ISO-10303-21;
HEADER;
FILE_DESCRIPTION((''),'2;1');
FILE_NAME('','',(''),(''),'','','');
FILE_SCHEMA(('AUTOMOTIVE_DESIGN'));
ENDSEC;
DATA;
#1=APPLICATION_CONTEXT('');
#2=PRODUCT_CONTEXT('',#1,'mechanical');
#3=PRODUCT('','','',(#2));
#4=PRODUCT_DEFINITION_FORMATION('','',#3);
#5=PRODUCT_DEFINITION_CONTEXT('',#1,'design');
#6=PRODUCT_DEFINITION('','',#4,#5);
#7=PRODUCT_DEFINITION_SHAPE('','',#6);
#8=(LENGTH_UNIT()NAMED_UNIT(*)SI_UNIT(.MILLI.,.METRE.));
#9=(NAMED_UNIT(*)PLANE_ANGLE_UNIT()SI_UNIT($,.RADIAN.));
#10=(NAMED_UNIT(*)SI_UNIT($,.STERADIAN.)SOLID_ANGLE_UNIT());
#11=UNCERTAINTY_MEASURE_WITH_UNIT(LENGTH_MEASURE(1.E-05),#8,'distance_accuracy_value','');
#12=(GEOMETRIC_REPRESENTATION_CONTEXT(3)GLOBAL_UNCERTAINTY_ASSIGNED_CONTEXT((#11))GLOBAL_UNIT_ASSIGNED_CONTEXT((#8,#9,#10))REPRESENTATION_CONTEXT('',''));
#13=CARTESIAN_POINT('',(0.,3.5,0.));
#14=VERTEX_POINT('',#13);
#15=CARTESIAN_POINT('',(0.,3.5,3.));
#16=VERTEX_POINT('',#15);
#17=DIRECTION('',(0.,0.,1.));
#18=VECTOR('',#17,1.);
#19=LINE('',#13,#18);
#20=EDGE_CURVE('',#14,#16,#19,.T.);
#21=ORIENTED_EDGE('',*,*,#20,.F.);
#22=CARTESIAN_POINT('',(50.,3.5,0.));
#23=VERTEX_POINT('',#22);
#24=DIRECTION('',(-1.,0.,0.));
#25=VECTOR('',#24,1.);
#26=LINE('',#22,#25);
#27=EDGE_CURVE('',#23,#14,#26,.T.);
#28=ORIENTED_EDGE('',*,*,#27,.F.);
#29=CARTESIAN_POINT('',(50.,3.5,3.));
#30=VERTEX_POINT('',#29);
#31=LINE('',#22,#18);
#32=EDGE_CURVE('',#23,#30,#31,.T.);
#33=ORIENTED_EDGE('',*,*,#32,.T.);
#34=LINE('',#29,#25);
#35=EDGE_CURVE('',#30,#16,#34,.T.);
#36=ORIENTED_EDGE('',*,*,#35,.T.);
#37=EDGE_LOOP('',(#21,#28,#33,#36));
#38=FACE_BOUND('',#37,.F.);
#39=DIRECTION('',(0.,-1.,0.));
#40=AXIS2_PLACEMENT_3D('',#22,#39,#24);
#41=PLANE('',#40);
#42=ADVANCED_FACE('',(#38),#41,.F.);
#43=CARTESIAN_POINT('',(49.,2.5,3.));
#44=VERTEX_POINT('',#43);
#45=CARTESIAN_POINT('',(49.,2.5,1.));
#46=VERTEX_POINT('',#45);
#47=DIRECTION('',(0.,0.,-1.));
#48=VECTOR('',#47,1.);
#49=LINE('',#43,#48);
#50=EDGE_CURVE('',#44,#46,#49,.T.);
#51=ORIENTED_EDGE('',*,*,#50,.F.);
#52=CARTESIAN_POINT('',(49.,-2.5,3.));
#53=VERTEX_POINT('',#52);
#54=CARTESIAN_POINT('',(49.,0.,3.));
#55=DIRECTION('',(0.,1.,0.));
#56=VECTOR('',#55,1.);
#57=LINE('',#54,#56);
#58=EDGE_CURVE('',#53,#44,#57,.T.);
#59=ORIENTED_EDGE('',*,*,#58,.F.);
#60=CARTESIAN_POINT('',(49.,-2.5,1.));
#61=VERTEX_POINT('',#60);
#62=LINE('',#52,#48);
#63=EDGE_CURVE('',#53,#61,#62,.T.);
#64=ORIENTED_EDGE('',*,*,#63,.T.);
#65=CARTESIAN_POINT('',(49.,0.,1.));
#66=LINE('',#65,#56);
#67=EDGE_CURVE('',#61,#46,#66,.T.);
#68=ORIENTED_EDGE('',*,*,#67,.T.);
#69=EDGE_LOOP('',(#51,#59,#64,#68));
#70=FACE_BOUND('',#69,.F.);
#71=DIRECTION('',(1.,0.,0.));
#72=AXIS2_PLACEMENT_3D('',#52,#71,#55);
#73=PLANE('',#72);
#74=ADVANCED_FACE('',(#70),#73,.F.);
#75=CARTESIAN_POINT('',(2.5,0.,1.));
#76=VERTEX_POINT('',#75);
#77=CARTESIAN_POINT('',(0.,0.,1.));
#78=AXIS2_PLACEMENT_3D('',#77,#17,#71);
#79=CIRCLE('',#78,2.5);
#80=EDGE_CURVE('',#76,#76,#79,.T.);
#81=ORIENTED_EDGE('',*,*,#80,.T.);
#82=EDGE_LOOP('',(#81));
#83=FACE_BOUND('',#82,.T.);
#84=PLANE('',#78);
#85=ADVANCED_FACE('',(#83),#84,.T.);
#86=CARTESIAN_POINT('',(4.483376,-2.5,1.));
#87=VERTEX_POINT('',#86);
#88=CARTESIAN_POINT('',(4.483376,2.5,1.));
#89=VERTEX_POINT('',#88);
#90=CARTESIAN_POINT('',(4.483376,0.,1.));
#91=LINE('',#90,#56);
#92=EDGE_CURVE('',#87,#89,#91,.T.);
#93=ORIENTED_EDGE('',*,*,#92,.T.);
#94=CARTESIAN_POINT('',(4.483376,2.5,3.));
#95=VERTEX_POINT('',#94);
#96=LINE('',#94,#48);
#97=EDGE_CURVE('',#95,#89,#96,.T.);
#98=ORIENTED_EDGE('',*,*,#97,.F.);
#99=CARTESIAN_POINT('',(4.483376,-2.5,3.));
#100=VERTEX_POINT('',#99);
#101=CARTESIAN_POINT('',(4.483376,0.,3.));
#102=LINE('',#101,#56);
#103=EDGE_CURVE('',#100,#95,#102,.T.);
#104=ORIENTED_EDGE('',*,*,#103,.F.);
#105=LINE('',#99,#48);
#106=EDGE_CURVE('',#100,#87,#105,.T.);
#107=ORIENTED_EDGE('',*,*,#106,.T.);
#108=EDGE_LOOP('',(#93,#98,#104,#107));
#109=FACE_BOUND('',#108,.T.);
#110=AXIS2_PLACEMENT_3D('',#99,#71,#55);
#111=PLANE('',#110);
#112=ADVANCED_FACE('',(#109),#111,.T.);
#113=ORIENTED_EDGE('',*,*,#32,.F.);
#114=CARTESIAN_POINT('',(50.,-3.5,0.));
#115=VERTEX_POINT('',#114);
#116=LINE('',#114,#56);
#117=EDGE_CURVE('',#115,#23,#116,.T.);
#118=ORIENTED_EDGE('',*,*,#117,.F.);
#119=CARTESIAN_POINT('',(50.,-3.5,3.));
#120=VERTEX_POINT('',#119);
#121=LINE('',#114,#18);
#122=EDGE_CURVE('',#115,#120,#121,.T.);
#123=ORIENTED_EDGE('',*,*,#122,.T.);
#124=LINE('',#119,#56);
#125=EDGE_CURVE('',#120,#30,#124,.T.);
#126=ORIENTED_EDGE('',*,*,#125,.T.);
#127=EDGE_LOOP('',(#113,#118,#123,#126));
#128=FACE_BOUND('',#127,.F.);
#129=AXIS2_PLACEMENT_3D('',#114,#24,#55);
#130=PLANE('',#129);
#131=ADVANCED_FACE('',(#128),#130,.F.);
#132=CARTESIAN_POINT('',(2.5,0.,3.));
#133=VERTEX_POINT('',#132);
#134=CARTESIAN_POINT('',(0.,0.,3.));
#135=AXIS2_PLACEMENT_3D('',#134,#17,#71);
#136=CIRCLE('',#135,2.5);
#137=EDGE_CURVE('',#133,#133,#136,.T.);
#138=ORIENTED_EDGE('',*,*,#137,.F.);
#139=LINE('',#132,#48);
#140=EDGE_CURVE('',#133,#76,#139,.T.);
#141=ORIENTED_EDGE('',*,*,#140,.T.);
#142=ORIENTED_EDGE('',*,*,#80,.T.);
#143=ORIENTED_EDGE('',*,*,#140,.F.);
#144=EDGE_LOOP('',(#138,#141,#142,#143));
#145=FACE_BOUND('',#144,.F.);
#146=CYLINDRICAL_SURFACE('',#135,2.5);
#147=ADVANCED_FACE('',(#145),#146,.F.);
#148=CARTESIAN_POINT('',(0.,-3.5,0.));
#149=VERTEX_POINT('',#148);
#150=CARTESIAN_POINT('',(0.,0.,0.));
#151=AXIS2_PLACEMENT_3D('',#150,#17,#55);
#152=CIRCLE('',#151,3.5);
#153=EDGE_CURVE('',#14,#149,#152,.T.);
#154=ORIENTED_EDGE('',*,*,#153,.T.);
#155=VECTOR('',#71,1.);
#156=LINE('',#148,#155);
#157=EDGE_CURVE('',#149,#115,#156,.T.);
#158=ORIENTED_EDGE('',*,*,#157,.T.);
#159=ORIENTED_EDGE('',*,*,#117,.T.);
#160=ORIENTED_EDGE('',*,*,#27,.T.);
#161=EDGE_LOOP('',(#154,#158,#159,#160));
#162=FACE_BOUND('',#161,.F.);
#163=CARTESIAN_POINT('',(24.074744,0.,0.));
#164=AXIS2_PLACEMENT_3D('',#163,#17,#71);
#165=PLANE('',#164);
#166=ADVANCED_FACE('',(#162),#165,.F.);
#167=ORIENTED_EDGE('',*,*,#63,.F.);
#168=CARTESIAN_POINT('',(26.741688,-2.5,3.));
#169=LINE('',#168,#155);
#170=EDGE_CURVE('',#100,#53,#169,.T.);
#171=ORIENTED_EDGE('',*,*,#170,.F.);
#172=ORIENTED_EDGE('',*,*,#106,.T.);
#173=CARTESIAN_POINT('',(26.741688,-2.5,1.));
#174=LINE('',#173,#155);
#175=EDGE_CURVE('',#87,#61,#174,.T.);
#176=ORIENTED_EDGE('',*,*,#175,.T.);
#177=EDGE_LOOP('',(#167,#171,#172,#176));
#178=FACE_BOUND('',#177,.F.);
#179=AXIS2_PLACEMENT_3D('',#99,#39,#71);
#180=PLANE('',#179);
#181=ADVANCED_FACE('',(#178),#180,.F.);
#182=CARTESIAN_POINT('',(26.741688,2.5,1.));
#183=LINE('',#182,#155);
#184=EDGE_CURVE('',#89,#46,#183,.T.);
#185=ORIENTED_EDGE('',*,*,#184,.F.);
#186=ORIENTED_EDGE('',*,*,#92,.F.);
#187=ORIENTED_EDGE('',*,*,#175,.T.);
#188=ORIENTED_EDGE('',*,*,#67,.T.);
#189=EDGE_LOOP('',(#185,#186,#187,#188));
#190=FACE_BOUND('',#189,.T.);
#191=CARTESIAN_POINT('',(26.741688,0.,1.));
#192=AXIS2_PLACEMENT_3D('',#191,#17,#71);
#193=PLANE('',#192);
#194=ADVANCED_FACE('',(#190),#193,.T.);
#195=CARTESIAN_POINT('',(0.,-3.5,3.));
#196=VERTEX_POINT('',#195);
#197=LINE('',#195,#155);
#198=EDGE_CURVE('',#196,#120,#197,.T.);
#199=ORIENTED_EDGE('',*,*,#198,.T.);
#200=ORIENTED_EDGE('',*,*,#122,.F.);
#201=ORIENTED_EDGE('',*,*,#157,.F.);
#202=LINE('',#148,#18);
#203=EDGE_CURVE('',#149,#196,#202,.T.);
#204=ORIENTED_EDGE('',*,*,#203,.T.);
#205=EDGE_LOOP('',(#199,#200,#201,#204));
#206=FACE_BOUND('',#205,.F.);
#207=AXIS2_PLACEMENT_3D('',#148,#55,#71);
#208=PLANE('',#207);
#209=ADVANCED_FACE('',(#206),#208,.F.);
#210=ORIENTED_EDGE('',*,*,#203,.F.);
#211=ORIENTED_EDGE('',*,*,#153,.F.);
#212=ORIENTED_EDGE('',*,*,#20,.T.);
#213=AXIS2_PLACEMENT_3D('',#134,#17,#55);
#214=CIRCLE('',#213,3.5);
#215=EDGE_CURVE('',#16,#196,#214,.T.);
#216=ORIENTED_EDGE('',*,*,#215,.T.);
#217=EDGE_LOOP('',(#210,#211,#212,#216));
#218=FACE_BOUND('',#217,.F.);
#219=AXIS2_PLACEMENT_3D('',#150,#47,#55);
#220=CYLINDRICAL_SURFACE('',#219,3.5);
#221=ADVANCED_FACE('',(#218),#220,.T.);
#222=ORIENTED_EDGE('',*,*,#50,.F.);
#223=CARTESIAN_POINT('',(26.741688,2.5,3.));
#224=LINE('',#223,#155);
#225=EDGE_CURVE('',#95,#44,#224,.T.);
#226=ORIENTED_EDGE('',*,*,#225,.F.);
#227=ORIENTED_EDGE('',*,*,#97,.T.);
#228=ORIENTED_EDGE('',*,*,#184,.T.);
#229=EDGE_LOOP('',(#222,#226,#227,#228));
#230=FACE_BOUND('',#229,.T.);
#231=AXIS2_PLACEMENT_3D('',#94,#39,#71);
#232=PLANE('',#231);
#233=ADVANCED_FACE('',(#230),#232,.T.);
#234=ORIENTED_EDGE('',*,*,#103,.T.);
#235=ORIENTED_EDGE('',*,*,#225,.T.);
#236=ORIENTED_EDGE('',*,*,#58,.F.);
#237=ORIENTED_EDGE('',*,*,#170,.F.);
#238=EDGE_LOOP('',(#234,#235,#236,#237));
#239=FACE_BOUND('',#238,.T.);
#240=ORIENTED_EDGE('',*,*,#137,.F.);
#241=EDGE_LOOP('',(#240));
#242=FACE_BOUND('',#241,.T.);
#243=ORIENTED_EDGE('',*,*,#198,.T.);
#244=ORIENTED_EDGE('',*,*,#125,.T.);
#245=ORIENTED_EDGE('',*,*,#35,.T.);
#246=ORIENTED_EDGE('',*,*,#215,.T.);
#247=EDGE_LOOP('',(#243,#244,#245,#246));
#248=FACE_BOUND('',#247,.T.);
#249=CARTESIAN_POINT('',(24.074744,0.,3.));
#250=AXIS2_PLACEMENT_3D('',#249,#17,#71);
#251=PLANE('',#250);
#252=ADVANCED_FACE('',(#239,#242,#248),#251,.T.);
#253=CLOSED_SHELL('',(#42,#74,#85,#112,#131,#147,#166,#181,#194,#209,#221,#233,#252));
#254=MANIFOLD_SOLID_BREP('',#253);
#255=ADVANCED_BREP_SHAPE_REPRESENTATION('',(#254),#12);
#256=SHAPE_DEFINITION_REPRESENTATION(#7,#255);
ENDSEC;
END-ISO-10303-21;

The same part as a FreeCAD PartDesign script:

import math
import FreeCAD as App
import Part
import Sketcher
from FreeCAD import Vector

doc = App.newDocument("Part")
params = doc.addObject("Spreadsheet::Sheet", "Params")
for row, (alias, value) in enumerate([
    ("sketch1_radius", "3.5 mm"),
    ("sketch1_width", "50 mm"),
    ("pad1_length", "3 mm"),
    ("sketch2_diameter", "5 mm"),
    ("sketch2_height", "5 mm"),
    ("pocket1_length", "2 mm"),
], start=1):
    params.set(f"A{row}", alias)
    params.set(f"B{row}", "=" + value)
    params.setAlias(f"B{row}", alias)

body = doc.addObject("PartDesign::Body", "Body")

# Sketch on XY plane
sketch1 = body.newObject("Sketcher::SketchObject", "Sketch")
sketch1.AttachmentSupport = (doc.getObject("XY_Plane"), [""])
sketch1.MapMode = "FlatFace"
sketch1.addGeometry(Part.LineSegment(Vector(50, 3.5, 0), Vector(0, 3.5, 0)), False)
sketch1.addGeometry(Part.ArcOfCircle(Part.Circle(Vector(0, 0, 0), Vector(0, 0, 1), 3.5), math.radians(90), math.radians(270)), False)
sketch1.addGeometry(Part.LineSegment(Vector(0, -3.5, 0), Vector(50, -3.5, 0)), False)
sketch1.addGeometry(Part.LineSegment(Vector(50, -3.5, 0), Vector(50, 3.5, 0)), False)
sketch1.addConstraint(Sketcher.Constraint("Tangent", 0, 2, 1, 1))
sketch1.addConstraint(Sketcher.Constraint("Tangent", 1, 2, 2, 1))
sketch1.addConstraint(Sketcher.Constraint("Coincident", 2, 2, 3, 1))
sketch1.addConstraint(Sketcher.Constraint("Coincident", 3, 2, 0, 1))
sketch1.addConstraint(Sketcher.Constraint("Horizontal", 0))
sketch1.addConstraint(Sketcher.Constraint("Horizontal", 2))
sketch1.addConstraint(Sketcher.Constraint("Vertical", 3))
sketch1.addConstraint(Sketcher.Constraint("Coincident", 1, 3, -1, 1))
sketch1.addConstraint(Sketcher.Constraint("Radius", 1, 3.5))
sketch1.addConstraint(Sketcher.Constraint("DistanceX", 0, 2, 0, 1, 50.0))
sketch1.setExpression("Constraints[8]", "Params.sketch1_radius")
sketch1.setExpression("Constraints[9]", "Params.sketch1_width")
pad1 = body.newObject("PartDesign::Pad", "Pad")
pad1.Profile = sketch1
pad1.setExpression("Length", "Params.pad1_length")

# Sketch on XY plane
sketch2 = body.newObject("Sketcher::SketchObject", "Sketch001")
sketch2.AttachmentSupport = (doc.getObject("XY_Plane"), [""])
sketch2.MapMode = "FlatFace"
sketch2.AttachmentOffset = App.Placement(Vector(0, 0, 3), App.Rotation())
sketch2.addGeometry(Part.Circle(Vector(0, 0, 0), Vector(0, 0, 1), 2.5), False)
sketch2.addGeometry(Part.LineSegment(Vector(4.5, 2.5, 0), Vector(4.5, -2.5, 0)), False)
sketch2.addGeometry(Part.LineSegment(Vector(4.5, -2.5, 0), Vector(49, -2.5, 0)), False)
sketch2.addGeometry(Part.LineSegment(Vector(49, -2.5, 0), Vector(49, 2.5, 0)), False)
sketch2.addGeometry(Part.LineSegment(Vector(49, 2.5, 0), Vector(4.5, 2.5, 0)), False)
sketch2.addConstraint(Sketcher.Constraint("Coincident", 1, 2, 2, 1))
sketch2.addConstraint(Sketcher.Constraint("Coincident", 2, 2, 3, 1))
sketch2.addConstraint(Sketcher.Constraint("Coincident", 3, 2, 4, 1))
sketch2.addConstraint(Sketcher.Constraint("Coincident", 4, 2, 1, 1))
sketch2.addConstraint(Sketcher.Constraint("Vertical", 1))
sketch2.addConstraint(Sketcher.Constraint("Horizontal", 2))
sketch2.addConstraint(Sketcher.Constraint("Vertical", 3))
sketch2.addConstraint(Sketcher.Constraint("Horizontal", 4))
sketch2.addConstraint(Sketcher.Constraint("Coincident", 0, 3, -1, 1))
sketch2.addConstraint(Sketcher.Constraint("Diameter", 0, 5.0))
sketch2.addConstraint(Sketcher.Constraint("DistanceY", 1, 2, 1, 1, 5.0))
sketch2.addConstraint(Sketcher.Constraint("DistanceX", -1, 1, 2, 2, 49.0))
sketch2.addConstraint(Sketcher.Constraint("DistanceY", 1, 2, -1, 1, 2.5))
sketch2.addConstraint(Sketcher.Constraint("DistanceX", 2, 1, 2, 2, 44.516624))
sketch2.setExpression("Constraints[9]", "Params.sketch2_diameter")
sketch2.setExpression("Constraints[10]", "Params.sketch2_height")
pocket1 = body.newObject("PartDesign::Pocket", "Pocket")
pocket1.Profile = sketch2
pocket1.setExpression("Length", "Params.pocket1_length")

doc.recompute()
